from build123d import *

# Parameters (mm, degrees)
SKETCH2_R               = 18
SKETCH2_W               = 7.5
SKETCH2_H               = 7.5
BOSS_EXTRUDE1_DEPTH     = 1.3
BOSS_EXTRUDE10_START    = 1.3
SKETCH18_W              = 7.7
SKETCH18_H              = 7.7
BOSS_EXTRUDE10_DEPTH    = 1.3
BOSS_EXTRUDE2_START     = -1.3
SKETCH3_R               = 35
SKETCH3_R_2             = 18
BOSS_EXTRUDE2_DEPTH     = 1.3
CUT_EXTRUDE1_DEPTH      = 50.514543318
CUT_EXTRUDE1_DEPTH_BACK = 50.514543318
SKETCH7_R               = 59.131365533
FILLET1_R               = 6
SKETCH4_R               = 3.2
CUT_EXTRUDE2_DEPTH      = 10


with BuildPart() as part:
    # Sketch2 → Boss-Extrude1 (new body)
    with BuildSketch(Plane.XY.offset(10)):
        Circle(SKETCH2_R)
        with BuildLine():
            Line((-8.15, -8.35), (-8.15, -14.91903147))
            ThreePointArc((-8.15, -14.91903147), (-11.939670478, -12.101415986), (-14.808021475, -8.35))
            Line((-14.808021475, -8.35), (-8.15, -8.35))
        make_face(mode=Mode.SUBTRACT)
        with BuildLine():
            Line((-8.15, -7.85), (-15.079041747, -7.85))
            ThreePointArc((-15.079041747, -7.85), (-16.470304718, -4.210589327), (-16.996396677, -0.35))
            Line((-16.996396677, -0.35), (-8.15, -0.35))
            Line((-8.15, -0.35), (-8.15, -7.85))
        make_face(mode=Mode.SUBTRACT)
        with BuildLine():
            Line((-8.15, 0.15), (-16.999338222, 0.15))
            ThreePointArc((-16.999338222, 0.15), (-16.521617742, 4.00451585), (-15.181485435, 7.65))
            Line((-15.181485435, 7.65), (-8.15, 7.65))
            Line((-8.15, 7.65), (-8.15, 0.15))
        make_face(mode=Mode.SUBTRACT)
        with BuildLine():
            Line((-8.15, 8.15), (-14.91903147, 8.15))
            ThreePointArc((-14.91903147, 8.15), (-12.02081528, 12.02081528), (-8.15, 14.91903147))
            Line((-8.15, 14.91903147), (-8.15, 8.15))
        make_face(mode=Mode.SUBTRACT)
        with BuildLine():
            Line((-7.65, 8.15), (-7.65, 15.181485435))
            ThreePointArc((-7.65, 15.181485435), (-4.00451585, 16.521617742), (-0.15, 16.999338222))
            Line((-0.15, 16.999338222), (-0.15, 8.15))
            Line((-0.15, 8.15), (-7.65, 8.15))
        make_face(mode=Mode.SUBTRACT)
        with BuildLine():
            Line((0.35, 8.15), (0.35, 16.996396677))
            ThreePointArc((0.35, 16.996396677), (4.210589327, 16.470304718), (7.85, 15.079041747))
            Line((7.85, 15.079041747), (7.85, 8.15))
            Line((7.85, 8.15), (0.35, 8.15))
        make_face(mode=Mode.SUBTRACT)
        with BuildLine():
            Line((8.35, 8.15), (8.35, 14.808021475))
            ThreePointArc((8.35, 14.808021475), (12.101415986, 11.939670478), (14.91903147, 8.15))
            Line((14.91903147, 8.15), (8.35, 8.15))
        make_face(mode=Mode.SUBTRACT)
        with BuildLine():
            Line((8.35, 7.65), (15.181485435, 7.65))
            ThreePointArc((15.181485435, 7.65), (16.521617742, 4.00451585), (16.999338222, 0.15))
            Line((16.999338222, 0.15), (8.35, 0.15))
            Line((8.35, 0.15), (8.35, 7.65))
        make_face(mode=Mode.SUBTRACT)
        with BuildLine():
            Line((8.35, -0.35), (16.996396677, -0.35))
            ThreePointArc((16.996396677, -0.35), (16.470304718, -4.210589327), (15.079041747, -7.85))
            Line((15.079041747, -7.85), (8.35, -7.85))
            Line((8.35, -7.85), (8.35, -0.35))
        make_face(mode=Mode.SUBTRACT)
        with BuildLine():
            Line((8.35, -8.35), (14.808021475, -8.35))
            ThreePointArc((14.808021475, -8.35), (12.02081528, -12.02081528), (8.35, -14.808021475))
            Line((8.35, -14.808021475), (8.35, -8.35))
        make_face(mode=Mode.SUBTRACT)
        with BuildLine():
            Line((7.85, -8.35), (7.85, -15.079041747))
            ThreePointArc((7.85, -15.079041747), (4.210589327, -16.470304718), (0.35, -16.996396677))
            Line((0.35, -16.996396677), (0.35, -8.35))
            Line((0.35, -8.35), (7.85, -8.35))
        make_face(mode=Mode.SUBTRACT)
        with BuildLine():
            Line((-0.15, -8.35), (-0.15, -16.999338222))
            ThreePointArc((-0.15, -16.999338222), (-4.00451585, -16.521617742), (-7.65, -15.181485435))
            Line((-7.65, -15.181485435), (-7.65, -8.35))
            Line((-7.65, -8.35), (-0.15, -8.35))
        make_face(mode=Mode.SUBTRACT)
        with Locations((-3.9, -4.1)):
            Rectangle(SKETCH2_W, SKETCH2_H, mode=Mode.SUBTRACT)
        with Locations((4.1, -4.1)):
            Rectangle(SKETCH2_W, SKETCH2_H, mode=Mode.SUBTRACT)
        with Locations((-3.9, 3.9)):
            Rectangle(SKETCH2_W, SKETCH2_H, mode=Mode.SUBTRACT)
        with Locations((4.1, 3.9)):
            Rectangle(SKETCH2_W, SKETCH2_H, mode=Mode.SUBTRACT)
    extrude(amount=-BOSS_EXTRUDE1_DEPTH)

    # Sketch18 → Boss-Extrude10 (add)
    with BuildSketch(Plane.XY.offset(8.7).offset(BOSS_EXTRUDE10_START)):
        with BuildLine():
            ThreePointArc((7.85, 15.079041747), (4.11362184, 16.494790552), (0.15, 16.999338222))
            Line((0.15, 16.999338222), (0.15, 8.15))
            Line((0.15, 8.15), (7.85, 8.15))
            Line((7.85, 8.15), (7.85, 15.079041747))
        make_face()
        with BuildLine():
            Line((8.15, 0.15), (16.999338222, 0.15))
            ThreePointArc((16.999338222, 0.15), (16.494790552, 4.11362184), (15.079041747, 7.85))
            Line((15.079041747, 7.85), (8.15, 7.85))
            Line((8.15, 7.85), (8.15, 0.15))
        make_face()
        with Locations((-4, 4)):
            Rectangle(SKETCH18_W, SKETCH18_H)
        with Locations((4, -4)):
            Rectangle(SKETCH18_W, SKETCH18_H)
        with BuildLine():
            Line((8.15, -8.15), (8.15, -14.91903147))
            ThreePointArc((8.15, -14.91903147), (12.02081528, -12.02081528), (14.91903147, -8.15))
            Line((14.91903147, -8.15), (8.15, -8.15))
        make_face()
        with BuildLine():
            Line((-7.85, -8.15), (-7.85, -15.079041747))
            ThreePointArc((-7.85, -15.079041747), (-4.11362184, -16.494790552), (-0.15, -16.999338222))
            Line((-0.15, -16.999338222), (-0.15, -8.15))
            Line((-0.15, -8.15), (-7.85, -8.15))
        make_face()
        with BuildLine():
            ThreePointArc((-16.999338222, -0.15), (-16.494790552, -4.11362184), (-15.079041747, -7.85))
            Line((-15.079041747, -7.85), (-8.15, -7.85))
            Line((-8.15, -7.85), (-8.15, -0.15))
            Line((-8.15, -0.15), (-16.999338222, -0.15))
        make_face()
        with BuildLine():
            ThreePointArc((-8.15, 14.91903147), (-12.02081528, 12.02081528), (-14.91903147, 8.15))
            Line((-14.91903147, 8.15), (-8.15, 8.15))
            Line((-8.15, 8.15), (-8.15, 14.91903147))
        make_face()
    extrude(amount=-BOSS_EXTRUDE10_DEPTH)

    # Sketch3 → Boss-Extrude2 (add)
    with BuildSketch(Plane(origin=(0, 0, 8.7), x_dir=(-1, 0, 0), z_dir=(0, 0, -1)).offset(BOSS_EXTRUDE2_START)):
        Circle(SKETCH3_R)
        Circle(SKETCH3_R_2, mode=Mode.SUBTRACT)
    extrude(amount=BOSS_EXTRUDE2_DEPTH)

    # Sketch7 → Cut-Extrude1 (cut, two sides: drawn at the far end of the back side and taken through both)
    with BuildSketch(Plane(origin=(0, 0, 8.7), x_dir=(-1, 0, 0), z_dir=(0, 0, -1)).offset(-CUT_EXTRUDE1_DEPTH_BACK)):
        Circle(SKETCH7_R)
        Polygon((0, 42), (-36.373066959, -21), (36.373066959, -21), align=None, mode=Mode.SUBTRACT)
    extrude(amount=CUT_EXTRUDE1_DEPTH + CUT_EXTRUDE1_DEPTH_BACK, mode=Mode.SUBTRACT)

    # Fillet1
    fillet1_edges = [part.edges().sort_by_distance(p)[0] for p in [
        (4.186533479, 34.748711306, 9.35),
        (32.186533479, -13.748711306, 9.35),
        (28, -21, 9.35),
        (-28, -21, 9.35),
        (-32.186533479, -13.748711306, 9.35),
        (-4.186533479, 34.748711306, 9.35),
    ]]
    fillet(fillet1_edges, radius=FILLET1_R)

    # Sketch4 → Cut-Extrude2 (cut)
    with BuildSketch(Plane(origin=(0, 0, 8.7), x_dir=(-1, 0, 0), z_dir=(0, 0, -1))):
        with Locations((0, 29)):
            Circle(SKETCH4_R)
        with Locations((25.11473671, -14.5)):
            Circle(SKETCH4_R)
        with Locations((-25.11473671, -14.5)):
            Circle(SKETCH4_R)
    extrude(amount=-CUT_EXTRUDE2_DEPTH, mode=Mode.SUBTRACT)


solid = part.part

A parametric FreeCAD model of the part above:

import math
import FreeCAD as App
import Part
import Sketcher
from FreeCAD import Vector
Q = App.Units.Quantity


def edges_at(feature, points):
    """Names of the edges that pass closest to the given points."""
    edges = feature.Shape.Edges
    near = lambda p: min(range(len(edges)), key=lambda i: edges[i].distToShape(Part.Vertex(*p))[0])
    return sorted({f"Edge{near(p) + 1}" for p in points})

doc = App.newDocument("Part")
body = doc.addObject("PartDesign::Body", "Body")

# Sketch on XY plane
sketch1 = body.newObject("Sketcher::SketchObject", "Sketch")
sketch1.AttachmentSupport = (doc.getObject("XY_Plane"), [""])
sketch1.MapMode = "FlatFace"
sketch1.AttachmentOffset = App.Placement(Vector(0, 0, 10), App.Rotation())
sketch1.addGeometry([
    Part.Circle(Vector(0, 0, 0), Vector(0, 0, 1), 18),  # 0
    Part.LineSegment(Vector(-14.808021, -8.35, 0), Vector(-8.15, -8.35, 0)),  # 1
    Part.LineSegment(Vector(-8.15, -8.35, 0), Vector(-8.15, -14.919031, 0)),  # 2
    Part.ArcOfCircle(Part.Circle(Vector(0, 0, 0), Vector(0, 0, 1), 17), math.radians(-150.582063), math.radians(-118.64699)),  # 3
    Part.LineSegment(Vector(-7.65, -8.35, 0), Vector(-0.15, -8.35, 0)),  # 4
    Part.LineSegment(Vector(-0.15, -8.35, 0), Vector(-0.15, -16.999338, 0)),  # 5
    Part.ArcOfCircle(Part.Circle(Vector(0, 0, 0), Vector(0, 0, 1), 17), math.radians(-116.743684), math.radians(-90.505558)),  # 6
    Part.LineSegment(Vector(-7.65, -15.181485, 0), Vector(-7.65, -8.35, 0)),  # 7
    Part.LineSegment(Vector(-8.15, -0.35, 0), Vector(-8.15, -7.85, 0)),  # 8
    Part.LineSegment(Vector(-8.15, -7.85, 0), Vector(-15.079042, -7.85, 0)),  # 9
    Part.ArcOfCircle(Part.Circle(Vector(0, 0, 0), Vector(0, 0, 1), 17), math.radians(-178.820298), math.radians(-152.498961)),  # 10
    Part.LineSegment(Vector(-16.996397, -0.35, 0), Vector(-8.15, -0.35, 0)),  # 11
    Part.LineSegment(Vector(-0.15, -7.85, 0), Vector(-7.65, -7.85, 0)),  # 12
    Part.LineSegment(Vector(-7.65, -7.85, 0), Vector(-7.65, -0.35, 0)),  # 13
    Part.LineSegment(Vector(-7.65, -0.35, 0), Vector(-0.15, -0.35, 0)),  # 14
    Part.LineSegment(Vector(-0.15, -0.35, 0), Vector(-0.15, -7.85, 0)),  # 15
    Part.LineSegment(Vector(0.35, -8.35, 0), Vector(7.85, -8.35, 0)),  # 16
    Part.LineSegment(Vector(7.85, -8.35, 0), Vector(7.85, -15.079042, 0)),  # 17
    Part.ArcOfCircle(Part.Circle(Vector(0, 0, 0), Vector(0, 0, 1), 17), math.radians(-88.820298), math.radians(-62.498961)),  # 18
    Part.LineSegment(Vector(0.35, -16.996397, 0), Vector(0.35, -8.35, 0)),  # 19
    Part.LineSegment(Vector(8.35, -14.808021, 0), Vector(8.35, -8.35, 0)),  # 20
    Part.LineSegment(Vector(8.35, -8.35, 0), Vector(14.808021, -8.35, 0)),  # 21
    Part.ArcOfCircle(Part.Circle(Vector(0, 0, 0), Vector(0, 0, 1), 17), math.radians(-60.582063), math.radians(-29.417937)),  # 22
    Part.LineSegment(Vector(7.85, -7.85, 0), Vector(0.35, -7.85, 0)),  # 23
    Part.LineSegment(Vector(0.35, -7.85, 0), Vector(0.35, -0.35, 0)),  # 24
    Part.LineSegment(Vector(0.35, -0.35, 0), Vector(7.85, -0.35, 0)),  # 25
    Part.LineSegment(Vector(7.85, -0.35, 0), Vector(7.85, -7.85, 0)),  # 26
    Part.LineSegment(Vector(8.35, -7.85, 0), Vector(8.35, -0.35, 0)),  # 27
    Part.LineSegment(Vector(8.35, -0.35, 0), Vector(16.996397, -0.35, 0)),  # 28
    Part.ArcOfCircle(Part.Circle(Vector(0, 0, 0), Vector(0, 0, 1), 17), math.radians(-27.501039), math.radians(-1.179702)),  # 29
    Part.LineSegment(Vector(15.079042, -7.85, 0), Vector(8.35, -7.85, 0)),  # 30
    Part.LineSegment(Vector(-8.15, 7.65, 0), Vector(-8.15, 0.15, 0)),  # 31
    Part.LineSegment(Vector(-8.15, 0.15, 0), Vector(-16.999338, 0.15, 0)),  # 32
    Part.ArcOfCircle(Part.Circle(Vector(0, 0, 0), Vector(0, 0, 1), 17), math.radians(153.256316), math.radians(179.494442)),  # 33
    Part.LineSegment(Vector(-15.181485, 7.65, 0), Vector(-8.15, 7.65, 0)),  # 34
    Part.LineSegment(Vector(-0.15, 0.15, 0), Vector(-7.65, 0.15, 0)),  # 35
    Part.LineSegment(Vector(-7.65, 0.15, 0), Vector(-7.65, 7.65, 0)),  # 36
    Part.LineSegment(Vector(-7.65, 7.65, 0), Vector(-0.15, 7.65, 0)),  # 37
    Part.LineSegment(Vector(-0.15, 7.65, 0), Vector(-0.15, 0.15, 0)),  # 38
    Part.LineSegment(Vector(-8.15, 14.919031, 0), Vector(-8.15, 8.15, 0)),  # 39
    Part.LineSegment(Vector(-8.15, 8.15, 0), Vector(-14.919031, 8.15, 0)),  # 40
    Part.ArcOfCircle(Part.Circle(Vector(0, 0, 0), Vector(0, 0, 1), 17), math.radians(118.64699), math.radians(151.35301)),  # 41
    Part.LineSegment(Vector(-0.15, 8.15, 0), Vector(-7.65, 8.15, 0)),  # 42
    Part.LineSegment(Vector(-7.65, 8.15, 0), Vector(-7.65, 15.181485, 0)),  # 43
    Part.ArcOfCircle(Part.Circle(Vector(0, 0, 0), Vector(0, 0, 1), 17), math.radians(90.505558), math.radians(116.743684)),  # 44
    Part.LineSegment(Vector(-0.15, 16.999338, 0), Vector(-0.15, 8.15, 0)),  # 45
    Part.LineSegment(Vector(7.85, 0.15, 0), Vector(0.35, 0.15, 0)),  # 46
    Part.LineSegment(Vector(0.35, 0.15, 0), Vector(0.35, 7.65, 0)),  # 47
    Part.LineSegment(Vector(0.35, 7.65, 0), Vector(7.85, 7.65, 0)),  # 48
    Part.LineSegment(Vector(7.85, 7.65, 0), Vector(7.85, 0.15, 0)),  # 49
    Part.LineSegment(Vector(8.35, 0.15, 0), Vector(8.35, 7.65, 0)),  # 50
    Part.LineSegment(Vector(8.35, 7.65, 0), Vector(15.181485, 7.65, 0)),  # 51
    Part.ArcOfCircle(Part.Circle(Vector(0, 0, 0), Vector(0, 0, 1), 17), math.radians(0.505558), math.radians(26.743684)),  # 52
    Part.LineSegment(Vector(16.999338, 0.15, 0), Vector(8.35, 0.15, 0)),  # 53
    Part.LineSegment(Vector(7.85, 8.15, 0), Vector(0.35, 8.15, 0)),  # 54
    Part.LineSegment(Vector(0.35, 8.15, 0), Vector(0.35, 16.996397, 0)),  # 55
    Part.ArcOfCircle(Part.Circle(Vector(0, 0, 0), Vector(0, 0, 1), 17), math.radians(62.498961), math.radians(88.820298)),  # 56
    Part.LineSegment(Vector(7.85, 15.079042, 0), Vector(7.85, 8.15, 0)),  # 57
    Part.LineSegment(Vector(14.919031, 8.15, 0), Vector(8.35, 8.15, 0)),  # 58
    Part.LineSegment(Vector(8.35, 8.15, 0), Vector(8.35, 14.808021, 0)),  # 59
    Part.ArcOfCircle(Part.Circle(Vector(0, 0, 0), Vector(0, 0, 1), 17), math.radians(28.64699), math.radians(60.582063)),  # 60
], False)
sketch1.addConstraint([
    Sketcher.Constraint("Coincident", 1, 2, 2, 1),
    Sketcher.Constraint("Coincident", 2, 2, 3, 2),
    Sketcher.Constraint("Coincident", 3, 1, 1, 1),
    Sketcher.Constraint("Coincident", 4, 2, 5, 1),
    Sketcher.Constraint("Coincident", 5, 2, 6, 2),
    Sketcher.Constraint("Coincident", 6, 1, 7, 1),
    Sketcher.Constraint("Coincident", 7, 2, 4, 1),
    Sketcher.Constraint("Coincident", 8, 2, 9, 1),
    Sketcher.Constraint("Coincident", 9, 2, 10, 2),
    Sketcher.Constraint("Coincident", 10, 1, 11, 1),
    Sketcher.Constraint("Coincident", 11, 2, 8, 1),
    Sketcher.Constraint("Coincident", 12, 2, 13, 1),
    Sketcher.Constraint("Coincident", 13, 2, 14, 1),
    Sketcher.Constraint("Coincident", 14, 2, 15, 1),
    Sketcher.Constraint("Coincident", 15, 2, 12, 1),
    Sketcher.Constraint("Coincident", 16, 2, 17, 1),
    Sketcher.Constraint("Coincident", 17, 2, 18, 2),
    Sketcher.Constraint("Coincident", 18, 1, 19, 1),
    Sketcher.Constraint("Coincident", 19, 2, 16, 1),
    Sketcher.Constraint("Coincident", 20, 2, 21, 1),
    Sketcher.Constraint("Coincident", 21, 2, 22, 2),
    Sketcher.Constraint("Coincident", 22, 1, 20, 1),
    Sketcher.Constraint("Coincident", 23, 2, 24, 1),
    Sketcher.Constraint("Coincident", 24, 2, 25, 1),
    Sketcher.Constraint("Coincident", 25, 2, 26, 1),
    Sketcher.Constraint("Coincident", 26, 2, 23, 1),
    Sketcher.Constraint("Coincident", 27, 2, 28, 1),
    Sketcher.Constraint("Coincident", 28, 2, 29, 2),
    Sketcher.Constraint("Coincident", 29, 1, 30, 1),
    Sketcher.Constraint("Coincident", 30, 2, 27, 1),
    Sketcher.Constraint("Coincident", 31, 2, 32, 1),
    Sketcher.Constraint("Coincident", 32, 2, 33, 2),
    Sketcher.Constraint("Coincident", 33, 1, 34, 1),
    Sketcher.Constraint("Coincident", 34, 2, 31, 1),
    Sketcher.Constraint("Coincident", 35, 2, 36, 1),
    Sketcher.Constraint("Coincident", 36, 2, 37, 1),
    Sketcher.Constraint("Coincident", 37, 2, 38, 1),
    Sketcher.Constraint("Coincident", 38, 2, 35, 1),
    Sketcher.Constraint("Coincident", 39, 2, 40, 1),
    Sketcher.Constraint("Coincident", 40, 2, 41, 2),
    Sketcher.Constraint("Coincident", 41, 1, 39, 1),
    Sketcher.Constraint("Coincident", 42, 2, 43, 1),
    Sketcher.Constraint("Coincident", 43, 2, 44, 2),
    Sketcher.Constraint("Coincident", 44, 1, 45, 1),
    Sketcher.Constraint("Coincident", 45, 2, 42, 1),
    Sketcher.Constraint("Coincident", 46, 2, 47, 1),
    Sketcher.Constraint("Coincident", 47, 2, 48, 1),
    Sketcher.Constraint("Coincident", 48, 2, 49, 1),
    Sketcher.Constraint("Coincident", 49, 2, 46, 1),
    Sketcher.Constraint("Coincident", 50, 2, 51, 1),
    Sketcher.Constraint("Coincident", 51, 2, 52, 2),
    Sketcher.Constraint("Coincident", 52, 1, 53, 1),
    Sketcher.Constraint("Coincident", 53, 2, 50, 1),
    Sketcher.Constraint("Coincident", 54, 2, 55, 1),
    Sketcher.Constraint("Coincident", 55, 2, 56, 2),
    Sketcher.Constraint("Coincident", 56, 1, 57, 1),
    Sketcher.Constraint("Coincident", 57, 2, 54, 1),
    Sketcher.Constraint("Coincident", 58, 2, 59, 1),
    Sketcher.Constraint("Coincident", 59, 2, 60, 2),
    Sketcher.Constraint("Coincident", 60, 1, 58, 1),
    Sketcher.Constraint("Horizontal", 1),
    Sketcher.Constraint("Vertical", 2),
    Sketcher.Constraint("Horizontal", 4),
    Sketcher.Constraint("Vertical", 5),
    Sketcher.Constraint("Vertical", 7),
    Sketcher.Constraint("Vertical", 8),
    Sketcher.Constraint("Horizontal", 9),
    Sketcher.Constraint("Horizontal", 11),
    Sketcher.Constraint("Horizontal", 12),
    Sketcher.Constraint("Vertical", 13),
    Sketcher.Constraint("Horizontal", 14),
    Sketcher.Constraint("Vertical", 15),
    Sketcher.Constraint("Horizontal", 16),
    Sketcher.Constraint("Vertical", 17),
    Sketcher.Constraint("Vertical", 19),
    Sketcher.Constraint("Vertical", 20),
    Sketcher.Constraint("Horizontal", 21),
    Sketcher.Constraint("Horizontal", 23),
    Sketcher.Constraint("Vertical", 24),
    Sketcher.Constraint("Horizontal", 25),
    Sketcher.Constraint("Vertical", 26),
    Sketcher.Constraint("Vertical", 27),
    Sketcher.Constraint("Horizontal", 28),
    Sketcher.Constraint("Horizontal", 30),
    Sketcher.Constraint("Vertical", 31),
    Sketcher.Constraint("Horizontal", 32),
    Sketcher.Constraint("Horizontal", 34),
    Sketcher.Constraint("Horizontal", 35),
    Sketcher.Constraint("Vertical", 36),
    Sketcher.Constraint("Horizontal", 37),
    Sketcher.Constraint("Vertical", 38),
    Sketcher.Constraint("Vertical", 39),
    Sketcher.Constraint("Horizontal", 40),
    Sketcher.Constraint("Horizontal", 42),
    Sketcher.Constraint("Vertical", 43),
    Sketcher.Constraint("Vertical", 45),
    Sketcher.Constraint("Horizontal", 46),
    Sketcher.Constraint("Vertical", 47),
    Sketcher.Constraint("Horizontal", 48),
    Sketcher.Constraint("Vertical", 49),
    Sketcher.Constraint("Vertical", 50),
    Sketcher.Constraint("Horizontal", 51),
    Sketcher.Constraint("Horizontal", 53),
    Sketcher.Constraint("Horizontal", 54),
    Sketcher.Constraint("Vertical", 55),
    Sketcher.Constraint("Vertical", 57),
    Sketcher.Constraint("Horizontal", 58),
    Sketcher.Constraint("Vertical", 59),
    Sketcher.Constraint("Coincident", 0, 3, -1, 1),
    Sketcher.Constraint("Coincident", 3, 3, -1, 1),
    Sketcher.Constraint("Coincident", 6, 3, -1, 1),
    Sketcher.Constraint("Coincident", 10, 3, -1, 1),
    Sketcher.Constraint("Coincident", 18, 3, -1, 1),
    Sketcher.Constraint("Coincident", 22, 3, -1, 1),
    Sketcher.Constraint("Coincident", 29, 3, -1, 1),
    Sketcher.Constraint("Coincident", 33, 3, -1, 1),
    Sketcher.Constraint("Coincident", 41, 3, -1, 1),
    Sketcher.Constraint("Coincident", 44, 3, -1, 1),
    Sketcher.Constraint("Coincident", 52, 3, -1, 1),
    Sketcher.Constraint("Coincident", 56, 3, -1, 1),
    Sketcher.Constraint("Coincident", 60, 3, -1, 1),
    Sketcher.Constraint("Equal", 3, 6),
    Sketcher.Constraint("Equal", 6, 10),
    Sketcher.Constraint("Equal", 10, 18),
    Sketcher.Constraint("Equal", 18, 22),
    Sketcher.Constraint("Equal", 22, 29),
    Sketcher.Constraint("Equal", 29, 33),
    Sketcher.Constraint("Equal", 33, 41),
    Sketcher.Constraint("Equal", 41, 44),
    Sketcher.Constraint("Equal", 44, 52),
    Sketcher.Constraint("Equal", 52, 56),
    Sketcher.Constraint("Equal", 56, 60),
    Sketcher.Constraint("Horizontal", 3, 1, 4, 2),
    Sketcher.Constraint("Horizontal", 9, 2, 12, 2),
    Sketcher.Constraint("Horizontal", 11, 2, 13, 2),
    Sketcher.Constraint("Horizontal", 7, 2, 16, 2),
    Sketcher.Constraint("Horizontal", 19, 2, 20, 2),
    Sketcher.Constraint("Horizontal", 15, 2, 23, 2),
    Sketcher.Constraint("Horizontal", 14, 2, 24, 2),
    Sketcher.Constraint("Horizontal", 25, 2, 27, 2),
    Sketcher.Constraint("Horizontal", 26, 2, 29, 1),
    Sketcher.Constraint("Horizontal", 32, 2, 35, 2),
    Sketcher.Constraint("Horizontal", 34, 2, 36, 2),
    Sketcher.Constraint("Horizontal", 40, 2, 42, 2),
    Sketcher.Constraint("Horizontal", 38, 2, 46, 2),
    Sketcher.Constraint("Horizontal", 37, 2, 47, 2),
    Sketcher.Constraint("Horizontal", 48, 2, 50, 2),
    Sketcher.Constraint("Horizontal", 49, 2, 52, 1),
    Sketcher.Constraint("Horizontal", 45, 2, 54, 2),
    Sketcher.Constraint("Horizontal", 57, 2, 58, 2),
    Sketcher.Constraint("Vertical", 2, 2, 8, 2),
    Sketcher.Constraint("Vertical", 7, 2, 12, 2),
    Sketcher.Constraint("Vertical", 5, 2, 14, 2),
    Sketcher.Constraint("Vertical", 19, 2, 23, 2),
    Sketcher.Constraint("Vertical", 17, 2, 25, 2),
    Sketcher.Constraint("Vertical", 22, 1, 27, 2),
    Sketcher.Constraint("Vertical", 11, 2, 31, 2),
    Sketcher.Constraint("Vertical", 13, 2, 35, 2),
    Sketcher.Constraint("Vertical", 15, 2, 37, 2),
    Sketcher.Constraint("Vertical", 34, 2, 39, 2),
    Sketcher.Constraint("Vertical", 36, 2, 42, 2),
    Sketcher.Constraint("Vertical", 38, 2, 44, 1),
    Sketcher.Constraint("Vertical", 24, 2, 46, 2),
    Sketcher.Constraint("Vertical", 26, 2, 48, 2),
    Sketcher.Constraint("Vertical", 30, 2, 50, 2),
    Sketcher.Constraint("Vertical", 47, 2, 54, 2),
    Sketcher.Constraint("Vertical", 49, 2, 56, 1),
    Sketcher.Constraint("Vertical", 53, 2, 58, 2),
    Sketcher.Constraint("Equal", 14, 16),
    Sketcher.Constraint("Equal", 58, 2),
    Sketcher.Constraint("Equal", 53, 5),
    Sketcher.Constraint("Equal", 51, 7),
    Sketcher.Constraint("Equal", 54, 8),
    Sketcher.Constraint("Equal", 30, 17),
    Sketcher.Constraint("Equal", 27, 31),
    Sketcher.Constraint("Diameter", 0, 36.0),
    Sketcher.Constraint("Radius", 3, 17.0),
    Sketcher.Constraint("DistanceX", 4, 1, 4, 2, 7.5),
    Sketcher.Constraint("DistanceX", 1, 2, -1, 1, 8.15),
    Sketcher.Constraint("DistanceY", 1, 2, -1, 1, 8.35),
    Sketcher.Constraint("DistanceX", 4, 2, -1, 1, 0.15),
    Sketcher.Constraint("DistanceY", 8, 2, -1, 1, 7.85),
])
pad1 = body.newObject("PartDesign::Pad", "Pad")
pad1.Profile = sketch1
pad1.Length = 1.3
pad1.Reversed = True

# Sketch on XY plane
sketch2 = body.newObject("Sketcher::SketchObject", "Sketch001")
sketch2.AttachmentSupport = (doc.getObject("XY_Plane"), [""])
sketch2.MapMode = "FlatFace"
sketch2.AttachmentOffset = App.Placement(Vector(0, 0, 10), App.Rotation())
sketch2.addGeometry([
    Part.ArcOfCircle(Part.Circle(Vector(0, 0, 0), Vector(0, 0, 1), 17), math.radians(62.498961), math.radians(89.494442)),  # 0
    Part.LineSegment(Vector(0.15, 16.999338, 0), Vector(0.15, 8.15, 0)),  # 1
    Part.LineSegment(Vector(0.15, 8.15, 0), Vector(7.85, 8.15, 0)),  # 2
    Part.LineSegment(Vector(7.85, 8.15, 0), Vector(7.85, 15.079042, 0)),  # 3
    Part.LineSegment(Vector(8.15, 0.15, 0), Vector(16.999338, 0.15, 0)),  # 4
    Part.ArcOfCircle(Part.Circle(Vector(0, 0, 0), Vector(0, 0, 1), 17), math.radians(0.505558), math.radians(27.501039)),  # 5
    Part.LineSegment(Vector(15.079042, 7.85, 0), Vector(8.15, 7.85, 0)),  # 6
    Part.LineSegment(Vector(8.15, 7.85, 0), Vector(8.15, 0.15, 0)),  # 7
    Part.LineSegment(Vector(-7.85, 7.85, 0), Vector(-7.85, 0.15, 0)),  # 8
    Part.LineSegment(Vector(-7.85, 0.15, 0), Vector(-0.15, 0.15, 0)),  # 9
    Part.LineSegment(Vector(-0.15, 0.15, 0), Vector(-0.15, 7.85, 0)),  # 10
    Part.LineSegment(Vector(-0.15, 7.85, 0), Vector(-7.85, 7.85, 0)),  # 11
    Part.LineSegment(Vector(0.15, -0.15, 0), Vector(0.15, -7.85, 0)),  # 12
    Part.LineSegment(Vector(0.15, -7.85, 0), Vector(7.85, -7.85, 0)),  # 13
    Part.LineSegment(Vector(7.85, -7.85, 0), Vector(7.85, -0.15, 0)),  # 14
    Part.LineSegment(Vector(7.85, -0.15, 0), Vector(0.15, -0.15, 0)),  # 15
    Part.LineSegment(Vector(8.15, -8.15, 0), Vector(8.15, -14.919031, 0)),  # 16
    Part.ArcOfCircle(Part.Circle(Vector(0, 0, 0), Vector(0, 0, 1), 17), math.radians(-61.35301), math.radians(-28.64699)),  # 17
    Part.LineSegment(Vector(14.919031, -8.15, 0), Vector(8.15, -8.15, 0)),  # 18
    Part.LineSegment(Vector(-7.85, -8.15, 0), Vector(-7.85, -15.079042, 0)),  # 19
    Part.ArcOfCircle(Part.Circle(Vector(0, 0, 0), Vector(0, 0, 1), 17), math.radians(-117.501039), math.radians(-90.505558)),  # 20
    Part.LineSegment(Vector(-0.15, -16.999338, 0), Vector(-0.15, -8.15, 0)),  # 21
    Part.LineSegment(Vector(-0.15, -8.15, 0), Vector(-7.85, -8.15, 0)),  # 22
    Part.ArcOfCircle(Part.Circle(Vector(0, 0, 0), Vector(0, 0, 1), 17), math.radians(-179.494442), math.radians(-152.498961)),  # 23
    Part.LineSegment(Vector(-15.079042, -7.85, 0), Vector(-8.15, -7.85, 0)),  # 24
    Part.LineSegment(Vector(-8.15, -7.85, 0), Vector(-8.15, -0.15, 0)),  # 25
    Part.LineSegment(Vector(-8.15, -0.15, 0), Vector(-16.999338, -0.15, 0)),  # 26
    Part.ArcOfCircle(Part.Circle(Vector(0, 0, 0), Vector(0, 0, 1), 17), math.radians(118.64699), math.radians(151.35301)),  # 27
    Part.LineSegment(Vector(-14.919031, 8.15, 0), Vector(-8.15, 8.15, 0)),  # 28
    Part.LineSegment(Vector(-8.15, 8.15, 0), Vector(-8.15, 14.919031, 0)),  # 29
], False)
sketch2.addConstraint([
    Sketcher.Constraint("Coincident", 0, 2, 1, 1),
    Sketcher.Constraint("Coincident", 1, 2, 2, 1),
    Sketcher.Constraint("Coincident", 2, 2, 3, 1),
    Sketcher.Constraint("Coincident", 3, 2, 0, 1),
    Sketcher.Constraint("Coincident", 4, 2, 5, 1),
    Sketcher.Constraint("Coincident", 5, 2, 6, 1),
    Sketcher.Constraint("Coincident", 6, 2, 7, 1),
    Sketcher.Constraint("Coincident", 7, 2, 4, 1),
    Sketcher.Constraint("Coincident", 8, 2, 9, 1),
    Sketcher.Constraint("Coincident", 9, 2, 10, 1),
    Sketcher.Constraint("Coincident", 10, 2, 11, 1),
    Sketcher.Constraint("Coincident", 11, 2, 8, 1),
    Sketcher.Constraint("Coincident", 12, 2, 13, 1),
    Sketcher.Constraint("Coincident", 13, 2, 14, 1),
    Sketcher.Constraint("Coincident", 14, 2, 15, 1),
    Sketcher.Constraint("Coincident", 15, 2, 12, 1),
    Sketcher.Constraint("Coincident", 16, 2, 17, 1),
    Sketcher.Constraint("Coincident", 17, 2, 18, 1),
    Sketcher.Constraint("Coincident", 18, 2, 16, 1),
    Sketcher.Constraint("Coincident", 19, 2, 20, 1),
    Sketcher.Constraint("Coincident", 20, 2, 21, 1),
    Sketcher.Constraint("Coincident", 21, 2, 22, 1),
    Sketcher.Constraint("Coincident", 22, 2, 19, 1),
    Sketcher.Constraint("Coincident", 23, 2, 24, 1),
    Sketcher.Constraint("Coincident", 24, 2, 25, 1),
    Sketcher.Constraint("Coincident", 25, 2, 26, 1),
    Sketcher.Constraint("Coincident", 26, 2, 23, 1),
    Sketcher.Constraint("Coincident", 27, 2, 28, 1),
    Sketcher.Constraint("Coincident", 28, 2, 29, 1),
    Sketcher.Constraint("Coincident", 29, 2, 27, 1),
    Sketcher.Constraint("Vertical", 1),
    Sketcher.Constraint("Horizontal", 2),
    Sketcher.Constraint("Vertical", 3),
    Sketcher.Constraint("Horizontal", 4),
    Sketcher.Constraint("Horizontal", 6),
    Sketcher.Constraint("Vertical", 7),
    Sketcher.Constraint("Vertical", 8),
    Sketcher.Constraint("Horizontal", 9),
    Sketcher.Constraint("Vertical", 10),
    Sketcher.Constraint("Horizontal", 11),
    Sketcher.Constraint("Vertical", 12),
    Sketcher.Constraint("Horizontal", 13),
    Sketcher.Constraint("Vertical", 14),
    Sketcher.Constraint("Horizontal", 15),
    Sketcher.Constraint("Vertical", 16),
    Sketcher.Constraint("Horizontal", 18),
    Sketcher.Constraint("Vertical", 19),
    Sketcher.Constraint("Vertical", 21),
    Sketcher.Constraint("Horizontal", 22),
    Sketcher.Constraint("Horizontal", 24),
    Sketcher.Constraint("Vertical", 25),
    Sketcher.Constraint("Horizontal", 26),
    Sketcher.Constraint("Horizontal", 28),
    Sketcher.Constraint("Vertical", 29),
    Sketcher.Constraint("Coincident", 0, 3, -1, 1),
    Sketcher.Constraint("Coincident", 5, 3, -1, 1),
    Sketcher.Constraint("Coincident", 17, 3, -1, 1),
    Sketcher.Constraint("Coincident", 20, 3, -1, 1),
    Sketcher.Constraint("Coincident", 23, 3, -1, 1),
    Sketcher.Constraint("Coincident", 27, 3, -1, 1),
    Sketcher.Constraint("Equal", 0, 5),
    Sketcher.Constraint("Equal", 5, 17),
    Sketcher.Constraint("Equal", 17, 20),
    Sketcher.Constraint("Equal", 20, 23),
    Sketcher.Constraint("Equal", 23, 27),
    Sketcher.Constraint("Symmetric", 10, 2, 12, 2, -1, 1),
    Sketcher.Constraint("Symmetric", 8, 2, 14, 2, -1, 1),
    Sketcher.Constraint("Symmetric", 1, 2, 21, 2, -1, 1),
    Sketcher.Constraint("Symmetric", 6, 2, 24, 2, -1, 1),
    Sketcher.Constraint("Symmetric", 18, 2, 28, 2, -1, 1),
    Sketcher.Constraint("Horizontal", 7, 2, 8, 2),
    Sketcher.Constraint("Horizontal", 6, 2, 10, 2),
    Sketcher.Constraint("Horizontal", 18, 2, 21, 2),
    Sketcher.Constraint("Horizontal", 15, 2, 25, 2),
    Sketcher.Constraint("Vertical", 1, 2, 12, 2),
    Sketcher.Constraint("Vertical", 3, 2, 13, 2),
    Sketcher.Constraint("Vertical", 7, 2, 16, 2),
    Sketcher.Constraint("Vertical", 11, 2, 19, 2),
    Sketcher.Constraint("Equal", 26, 1),
    Sketcher.Constraint("Equal", 24, 3),
    Sketcher.Constraint("Equal", 22, 7),
    Sketcher.Constraint("Radius", 0, 17.0),
    Sketcher.Constraint("DistanceX", 2, 1, 2, 2, 7.7),
    Sketcher.Constraint("DistanceY", 4, 2, 2, 2, 8.0),
    Sketcher.Constraint("DistanceX", 11, 2, 1, 2, 8.0),
])
pad2 = body.newObject("PartDesign::Pad", "Pad001")
pad2.Profile = sketch2
pad2.Length = 1.3
pad2.Reversed = True

# Sketch on XY plane
sketch3 = body.newObject("Sketcher::SketchObject", "Sketch002")
sketch3.AttachmentSupport = (doc.getObject("XY_Plane"), [""])
sketch3.MapMode = "FlatFace"
sketch3.AttachmentOffset = App.Placement(Vector(0, 0, 10), App.Rotation())
sketch3.addGeometry([
    Part.Circle(Vector(0, 0, 0), Vector(0, 0, 1), 35),
    Part.Circle(Vector(0, 0, 0), Vector(0, 0, 1), 18),
], False)
sketch3.addConstraint([
    Sketcher.Constraint("Coincident", 0, 3, -1, 1),
    Sketcher.Constraint("Coincident", 1, 3, -1, 1),
    Sketcher.Constraint("Diameter", 0, 70.0),
    Sketcher.Constraint("Diameter", 1, 36.0),
])
pad3 = body.newObject("PartDesign::Pad", "Pad002")
pad3.Profile = sketch3
pad3.Length = 1.3
pad3.Reversed = True

# Sketch on XY plane
sketch4 = body.newObject("Sketcher::SketchObject", "Sketch003")
sketch4.AttachmentSupport = (doc.getObject("XY_Plane"), [""])
sketch4.MapMode = "FlatFace"
sketch4.AttachmentOffset = App.Placement(Vector(0, 0, 8.7), App.Rotation())
sketch4.addGeometry([
    Part.Circle(Vector(0, 0, 0), Vector(0, 0, 1), 59.131366),
    Part.LineSegment(Vector(36.373067, -21, 0), Vector(0, 42, 0)),
    Part.LineSegment(Vector(0, 42, 0), Vector(-36.373067, -21, 0)),
    Part.LineSegment(Vector(-36.373067, -21, 0), Vector(36.373067, -21, 0)),
], False)
sketch4.addConstraint([
    Sketcher.Constraint("Coincident", 1, 2, 2, 1),
    Sketcher.Constraint("Coincident", 2, 2, 3, 1),
    Sketcher.Constraint("Coincident", 3, 2, 1, 1),
    Sketcher.Constraint("Horizontal", 3),
    Sketcher.Constraint("Coincident", 0, 3, -1, 1),
    Sketcher.Constraint("PointOnObject", 1, 2, -2),
    Sketcher.Constraint("Equal", 1, 2),
    Sketcher.Constraint("Angle", 1, Q("120 deg")),
    Sketcher.Constraint("DistanceY", -1, 1, 1, 2, 42.0),
    Sketcher.Constraint("DistanceY", 2, 2, -1, 1, 21.0),
    Sketcher.Constraint("Diameter", 0, 118.262731),
])
pocket1 = body.newObject("PartDesign::Pocket", "Pocket")
pocket1.Profile = sketch4
pocket1.Type = "ThroughAll"
pocket1.Midplane = True
doc.recompute()

fillet = body.newObject("PartDesign::Fillet", "Fillet")
fillet.Base = (pocket1, edges_at(pocket1, [
    (4.187, 34.749, 9.35),
    (32.187, -13.749, 9.35),
    (28, -21, 9.35),
    (-28, -21, 9.35),
    (-32.187, -13.749, 9.35),
    (-4.187, 34.749, 9.35),
]))
fillet.Radius = 6

# Sketch on XY plane
sketch5 = body.newObject("Sketcher::SketchObject", "Sketch004")
sketch5.AttachmentSupport = (doc.getObject("XY_Plane"), [""])
sketch5.MapMode = "FlatFace"
sketch5.AttachmentOffset = App.Placement(Vector(0, 0, 8.7), App.Rotation())
sketch5.addGeometry([
    Part.Circle(Vector(0, 29, 0), Vector(0, 0, 1), 3.2),
    Part.Circle(Vector(-25.114737, -14.5, 0), Vector(0, 0, 1), 3.2),
    Part.Circle(Vector(25.114737, -14.5, 0), Vector(0, 0, 1), 3.2),
], False)
sketch5.addConstraint([
    Sketcher.Constraint("Equal", 0, 1),
    Sketcher.Constraint("Equal", 1, 2),
    Sketcher.Constraint("Symmetric", 1, 3, 2, 3, -2),
    Sketcher.Constraint("PointOnObject", 0, 3, -2),
    Sketcher.Constraint("Diameter", 0, 6.4),
    Sketcher.Constraint("DistanceY", -1, 1, 0, 3, 29.0),
    Sketcher.Constraint("DistanceY", 1, 3, -1, 1, 14.5),
    Sketcher.Constraint("DistanceX", 1, 3, -1, 1, 25.114737),
])
pocket2 = body.newObject("PartDesign::Pocket", "Pocket001")
pocket2.Profile = sketch5
pocket2.Length = 10
pocket2.Reversed = True

doc.recompute()
